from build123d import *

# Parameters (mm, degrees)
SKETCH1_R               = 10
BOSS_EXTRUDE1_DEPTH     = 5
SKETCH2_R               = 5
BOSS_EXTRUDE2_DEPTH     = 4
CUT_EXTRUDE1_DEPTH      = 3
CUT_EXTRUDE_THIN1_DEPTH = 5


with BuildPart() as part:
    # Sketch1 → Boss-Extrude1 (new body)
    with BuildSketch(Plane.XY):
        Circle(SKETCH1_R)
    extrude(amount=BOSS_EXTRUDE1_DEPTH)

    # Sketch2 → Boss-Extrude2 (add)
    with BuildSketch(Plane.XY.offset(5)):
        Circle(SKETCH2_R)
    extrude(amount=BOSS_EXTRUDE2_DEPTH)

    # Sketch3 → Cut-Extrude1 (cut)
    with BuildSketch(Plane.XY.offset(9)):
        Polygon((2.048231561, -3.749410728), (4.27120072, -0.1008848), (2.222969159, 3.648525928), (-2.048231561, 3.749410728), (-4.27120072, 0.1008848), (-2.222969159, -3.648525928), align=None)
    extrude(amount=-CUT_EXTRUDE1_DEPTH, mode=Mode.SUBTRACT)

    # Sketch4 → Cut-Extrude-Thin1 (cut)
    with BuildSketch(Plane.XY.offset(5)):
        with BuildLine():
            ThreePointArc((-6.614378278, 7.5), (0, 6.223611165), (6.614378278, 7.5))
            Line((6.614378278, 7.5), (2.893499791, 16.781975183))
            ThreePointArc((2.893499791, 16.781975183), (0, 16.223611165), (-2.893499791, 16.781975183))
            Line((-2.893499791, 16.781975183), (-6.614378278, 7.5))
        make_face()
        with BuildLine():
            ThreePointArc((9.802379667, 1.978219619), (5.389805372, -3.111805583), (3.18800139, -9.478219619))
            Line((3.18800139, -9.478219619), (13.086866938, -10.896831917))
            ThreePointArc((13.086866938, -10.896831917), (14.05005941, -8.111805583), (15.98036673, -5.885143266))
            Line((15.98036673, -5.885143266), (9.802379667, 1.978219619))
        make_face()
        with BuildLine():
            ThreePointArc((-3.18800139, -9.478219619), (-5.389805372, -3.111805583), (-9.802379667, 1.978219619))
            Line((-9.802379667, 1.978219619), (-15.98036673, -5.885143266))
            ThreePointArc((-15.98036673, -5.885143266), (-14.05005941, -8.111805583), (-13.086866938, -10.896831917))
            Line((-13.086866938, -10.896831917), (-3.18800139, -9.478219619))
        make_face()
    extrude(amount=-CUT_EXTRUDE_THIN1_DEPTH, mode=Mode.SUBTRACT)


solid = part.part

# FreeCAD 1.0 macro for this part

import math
import FreeCAD as App
import Part
import Sketcher
from FreeCAD import Vector
Q = App.Units.Quantity


def add_polygon(sketch, points):
    """Adds a closed chain of lines whose ends are joined by coincident constraints."""
    first, n = sketch.GeometryCount, len(points)
    for a, b in zip(points, points[1:] + points[:1]):
        sketch.addGeometry(Part.LineSegment(App.Vector(*a, 0), App.Vector(*b, 0)), False)
    for i in range(n):
        sketch.addConstraint(Sketcher.Constraint("Coincident", first + i, 2, first + (i + 1) % n, 1))

doc = App.newDocument("Part")
body = doc.addObject("PartDesign::Body", "Body")

# Sketch on XY plane
sketch1 = doc.addObject("Sketcher::SketchObject", "Sketch")
body.addObject(sketch1)
sketch1.AttachmentSupport = (doc.XY_Plane, [""])
sketch1.MapMode = "FlatFace"
sketch1.addGeometry(Part.Circle(Vector(0, 0, 0), Vector(0, 0, 1), 10), False)
sketch1.addConstraint(Sketcher.Constraint("Coincident", 0, 3, -1, 1))
sketch1.addConstraint(Sketcher.Constraint("Diameter", 0, Q("20 mm")))
pad1 = doc.addObject("PartDesign::Pad", "Pad")
body.addObject(pad1)
pad1.Profile = sketch1
pad1.Length = 5

# Sketch on XY plane
sketch2 = doc.addObject("Sketcher::SketchObject", "Sketch001")
body.addObject(sketch2)
sketch2.AttachmentSupport = (doc.XY_Plane, [""])
sketch2.MapMode = "FlatFace"
sketch2.AttachmentOffset = App.Placement(Vector(0, 0, 5), App.Rotation())
sketch2.addGeometry(Part.Circle(Vector(0, 0, 0), Vector(0, 0, 1), 5), False)
sketch2.addConstraint(Sketcher.Constraint("Coincident", 0, 3, -1, 1))
sketch2.addConstraint(Sketcher.Constraint("Diameter", 0, Q("10 mm")))
pad2 = doc.addObject("PartDesign::Pad", "Pad001")
body.addObject(pad2)
pad2.Profile = sketch2
pad2.Length = 4

# Sketch on XY plane
sketch3 = doc.addObject("Sketcher::SketchObject", "Sketch002")
body.addObject(sketch3)
sketch3.AttachmentSupport = (doc.XY_Plane, [""])
sketch3.MapMode = "FlatFace"
sketch3.AttachmentOffset = App.Placement(Vector(0, 0, 9), App.Rotation())
add_polygon(sketch3, [(2, -3.7), (4.3, -0.1), (2.2, 3.6), (-2, 3.7), (-4.3, 0.1), (-2.2, -3.6)])  # lines 0-5
sketch3.addConstraint(Sketcher.Constraint("Symmetric", 0, 2, 3, 2, -1, 1))
sketch3.addConstraint(Sketcher.Constraint("Symmetric", 1, 2, 4, 2, -1, 1))
sketch3.addConstraint(Sketcher.Constraint("Symmetric", 2, 2, 5, 2, -1, 1))
sketch3.addConstraint(Sketcher.Constraint("Equal", 0, 1))
sketch3.addConstraint(Sketcher.Constraint("Equal", 1, 2))
sketch3.addConstraint(Sketcher.Constraint("DistanceX", -1, 1, 0, 2, Q("4.271201 mm")))
sketch3.addConstraint(Sketcher.Constraint("DistanceX", 2, 2, 1, 2, Q("4.271201 mm")))
sketch3.addConstraint(Sketcher.Constraint("Distance", 0, Q("4.272392 mm")))
sketch3.addConstraint(Sketcher.Constraint("DistanceX", -1, 1, 1, 2, Q("2.222969 mm")))
pocket1 = doc.addObject("PartDesign::Pocket", "Pocket")
body.addObject(pocket1)
pocket1.Profile = sketch3
pocket1.Length = 3

# Sketch on XY plane
sketch4 = doc.addObject("Sketcher::SketchObject", "Sketch003")
body.addObject(sketch4)
sketch4.AttachmentSupport = (doc.XY_Plane, [""])
sketch4.MapMode = "FlatFace"
sketch4.AttachmentOffset = App.Placement(Vector(0, 0, 5), App.Rotation())
sketch4.addGeometry(Part.ArcOfCircle(Part.Circle(Vector(0, 24, 0), Vector(0, 0, 1), 18), math.radians(-112), math.radians(-68)), False)
sketch4.addGeometry(Part.LineSegment(Vector(7, 8, 0), Vector(3, 17, 0)), False)
sketch4.addGeometry(Part.ArcOfCircle(Part.Circle(Vector(0, 24, 0), Vector(0, 0, 1), 8), math.radians(-112), math.radians(-68)), False)
sketch4.addGeometry(Part.LineSegment(Vector(-3, 17, 0), Vector(-7, 8, 0)), False)
sketch4.addGeometry(Part.ArcOfCircle(Part.Circle(Vector(21, -12, 0), Vector(0, 0, 1), 18), math.radians(128), math.radians(172)), False)
sketch4.addGeometry(Part.LineSegment(Vector(3, -9, 0), Vector(13, -11, 0)), False)
sketch4.addGeometry(Part.ArcOfCircle(Part.Circle(Vector(21, -12, 0), Vector(0, 0, 1), 8), math.radians(128), math.radians(172)), False)
sketch4.addGeometry(Part.LineSegment(Vector(16, -6, 0), Vector(10, 2, 0)), False)
sketch4.addGeometry(Part.ArcOfCircle(Part.Circle(Vector(-21, -12, 0), Vector(0, 0, 1), 18), math.radians(8), math.radians(52)), False)
sketch4.addGeometry(Part.LineSegment(Vector(-10, 2, 0), Vector(-16, -6, 0)), False)
sketch4.addGeometry(Part.ArcOfCircle(Part.Circle(Vector(-21, -12, 0), Vector(0, 0, 1), 8), math.radians(8), math.radians(52)), False)
sketch4.addGeometry(Part.LineSegment(Vector(-13, -11, 0), Vector(-3, -9, 0)), False)
sketch4.addConstraint(Sketcher.Constraint("Coincident", 0, 2, 1, 1))
sketch4.addConstraint(Sketcher.Constraint("Coincident", 1, 2, 2, 2))
sketch4.addConstraint(Sketcher.Constraint("Coincident", 2, 1, 3, 1))
sketch4.addConstraint(Sketcher.Constraint("Coincident", 3, 2, 0, 1))
sketch4.addConstraint(Sketcher.Constraint("Coincident", 4, 2, 5, 1))
sketch4.addConstraint(Sketcher.Constraint("Coincident", 5, 2, 6, 2))
sketch4.addConstraint(Sketcher.Constraint("Coincident", 6, 1, 7, 1))
sketch4.addConstraint(Sketcher.Constraint("Coincident", 7, 2, 4, 1))
sketch4.addConstraint(Sketcher.Constraint("Coincident", 8, 2, 9, 1))
sketch4.addConstraint(Sketcher.Constraint("Coincident", 9, 2, 10, 2))
sketch4.addConstraint(Sketcher.Constraint("Coincident", 10, 1, 11, 1))
sketch4.addConstraint(Sketcher.Constraint("Coincident", 11, 2, 8, 1))
sketch4.addConstraint(Sketcher.Constraint("Coincident", 2, 3, 0, 3))
sketch4.addConstraint(Sketcher.Constraint("Coincident", 6, 3, 4, 3))
sketch4.addConstraint(Sketcher.Constraint("Coincident", 10, 3, 8, 3))
sketch4.addConstraint(Sketcher.Constraint("Equal", 0, 4))
sketch4.addConstraint(Sketcher.Constraint("Equal", 2, 6))
sketch4.addConstraint(Sketcher.Constraint("Equal", 4, 8))
sketch4.addConstraint(Sketcher.Constraint("Equal", 6, 10))
sketch4.addConstraint(Sketcher.Constraint("Symmetric", 4, 3, 8, 3, -2))
sketch4.addConstraint(Sketcher.Constraint("Symmetric", 1, 2, 2, 1, -2))
sketch4.addConstraint(Sketcher.Constraint("Horizontal", 0, 2, 3, 2))
sketch4.addConstraint(Sketcher.Constraint("Horizontal", 7, 2, 8, 2))
sketch4.addConstraint(Sketcher.Constraint("Horizontal", 6, 1, 9, 2))
sketch4.addConstraint(Sketcher.Constraint("Horizontal", 5, 2, 10, 1))
sketch4.addConstraint(Sketcher.Constraint("Horizontal", 4, 2, 11, 2))
sketch4.addConstraint(Sketcher.Constraint("Distance", 1, Q("10 mm")))
sketch4.addConstraint(Sketcher.Constraint("DistanceY", -1, 1, 0, 3, Q("24 mm")))
sketch4.addConstraint(Sketcher.Constraint("DistanceY", 4, 3, -1, 1, Q("12 mm")))
sketch4.addConstraint(Sketcher.Constraint("DistanceY", -1, 1, 0, 2, Q("7.5 mm")))
sketch4.addConstraint(Sketcher.Constraint("Radius", 0, Q("17.776389 mm")))
sketch4.addConstraint(Sketcher.Constraint("DistanceX", -1, 1, 4, 2, Q("3.188001 mm")))
sketch4.addConstraint(Sketcher.Constraint("DistanceX", 2, 1, 1, 2, Q("5.787 mm")))
sketch4.addConstraint(Sketcher.Constraint("DistanceX", 0, 2, 7, 2, Q("3.188001 mm")))
sketch4.addConstraint(Sketcher.Constraint("DistanceX", 5, 2, 6, 1, Q("2.8935 mm")))
sketch4.addConstraint(Sketcher.Constraint("DistanceX", -1, 1, 4, 3, Q("20.78461 mm")))
sketch4.addConstraint(Sketcher.Constraint("DistanceY", 5, 2, -1, 1, Q("10.896832 mm")))
pocket2 = doc.addObject("PartDesign::Pocket", "Pocket001")
body.addObject(pocket2)
pocket2.Profile = sketch4
pocket2.Length = 5

doc.recompute()
